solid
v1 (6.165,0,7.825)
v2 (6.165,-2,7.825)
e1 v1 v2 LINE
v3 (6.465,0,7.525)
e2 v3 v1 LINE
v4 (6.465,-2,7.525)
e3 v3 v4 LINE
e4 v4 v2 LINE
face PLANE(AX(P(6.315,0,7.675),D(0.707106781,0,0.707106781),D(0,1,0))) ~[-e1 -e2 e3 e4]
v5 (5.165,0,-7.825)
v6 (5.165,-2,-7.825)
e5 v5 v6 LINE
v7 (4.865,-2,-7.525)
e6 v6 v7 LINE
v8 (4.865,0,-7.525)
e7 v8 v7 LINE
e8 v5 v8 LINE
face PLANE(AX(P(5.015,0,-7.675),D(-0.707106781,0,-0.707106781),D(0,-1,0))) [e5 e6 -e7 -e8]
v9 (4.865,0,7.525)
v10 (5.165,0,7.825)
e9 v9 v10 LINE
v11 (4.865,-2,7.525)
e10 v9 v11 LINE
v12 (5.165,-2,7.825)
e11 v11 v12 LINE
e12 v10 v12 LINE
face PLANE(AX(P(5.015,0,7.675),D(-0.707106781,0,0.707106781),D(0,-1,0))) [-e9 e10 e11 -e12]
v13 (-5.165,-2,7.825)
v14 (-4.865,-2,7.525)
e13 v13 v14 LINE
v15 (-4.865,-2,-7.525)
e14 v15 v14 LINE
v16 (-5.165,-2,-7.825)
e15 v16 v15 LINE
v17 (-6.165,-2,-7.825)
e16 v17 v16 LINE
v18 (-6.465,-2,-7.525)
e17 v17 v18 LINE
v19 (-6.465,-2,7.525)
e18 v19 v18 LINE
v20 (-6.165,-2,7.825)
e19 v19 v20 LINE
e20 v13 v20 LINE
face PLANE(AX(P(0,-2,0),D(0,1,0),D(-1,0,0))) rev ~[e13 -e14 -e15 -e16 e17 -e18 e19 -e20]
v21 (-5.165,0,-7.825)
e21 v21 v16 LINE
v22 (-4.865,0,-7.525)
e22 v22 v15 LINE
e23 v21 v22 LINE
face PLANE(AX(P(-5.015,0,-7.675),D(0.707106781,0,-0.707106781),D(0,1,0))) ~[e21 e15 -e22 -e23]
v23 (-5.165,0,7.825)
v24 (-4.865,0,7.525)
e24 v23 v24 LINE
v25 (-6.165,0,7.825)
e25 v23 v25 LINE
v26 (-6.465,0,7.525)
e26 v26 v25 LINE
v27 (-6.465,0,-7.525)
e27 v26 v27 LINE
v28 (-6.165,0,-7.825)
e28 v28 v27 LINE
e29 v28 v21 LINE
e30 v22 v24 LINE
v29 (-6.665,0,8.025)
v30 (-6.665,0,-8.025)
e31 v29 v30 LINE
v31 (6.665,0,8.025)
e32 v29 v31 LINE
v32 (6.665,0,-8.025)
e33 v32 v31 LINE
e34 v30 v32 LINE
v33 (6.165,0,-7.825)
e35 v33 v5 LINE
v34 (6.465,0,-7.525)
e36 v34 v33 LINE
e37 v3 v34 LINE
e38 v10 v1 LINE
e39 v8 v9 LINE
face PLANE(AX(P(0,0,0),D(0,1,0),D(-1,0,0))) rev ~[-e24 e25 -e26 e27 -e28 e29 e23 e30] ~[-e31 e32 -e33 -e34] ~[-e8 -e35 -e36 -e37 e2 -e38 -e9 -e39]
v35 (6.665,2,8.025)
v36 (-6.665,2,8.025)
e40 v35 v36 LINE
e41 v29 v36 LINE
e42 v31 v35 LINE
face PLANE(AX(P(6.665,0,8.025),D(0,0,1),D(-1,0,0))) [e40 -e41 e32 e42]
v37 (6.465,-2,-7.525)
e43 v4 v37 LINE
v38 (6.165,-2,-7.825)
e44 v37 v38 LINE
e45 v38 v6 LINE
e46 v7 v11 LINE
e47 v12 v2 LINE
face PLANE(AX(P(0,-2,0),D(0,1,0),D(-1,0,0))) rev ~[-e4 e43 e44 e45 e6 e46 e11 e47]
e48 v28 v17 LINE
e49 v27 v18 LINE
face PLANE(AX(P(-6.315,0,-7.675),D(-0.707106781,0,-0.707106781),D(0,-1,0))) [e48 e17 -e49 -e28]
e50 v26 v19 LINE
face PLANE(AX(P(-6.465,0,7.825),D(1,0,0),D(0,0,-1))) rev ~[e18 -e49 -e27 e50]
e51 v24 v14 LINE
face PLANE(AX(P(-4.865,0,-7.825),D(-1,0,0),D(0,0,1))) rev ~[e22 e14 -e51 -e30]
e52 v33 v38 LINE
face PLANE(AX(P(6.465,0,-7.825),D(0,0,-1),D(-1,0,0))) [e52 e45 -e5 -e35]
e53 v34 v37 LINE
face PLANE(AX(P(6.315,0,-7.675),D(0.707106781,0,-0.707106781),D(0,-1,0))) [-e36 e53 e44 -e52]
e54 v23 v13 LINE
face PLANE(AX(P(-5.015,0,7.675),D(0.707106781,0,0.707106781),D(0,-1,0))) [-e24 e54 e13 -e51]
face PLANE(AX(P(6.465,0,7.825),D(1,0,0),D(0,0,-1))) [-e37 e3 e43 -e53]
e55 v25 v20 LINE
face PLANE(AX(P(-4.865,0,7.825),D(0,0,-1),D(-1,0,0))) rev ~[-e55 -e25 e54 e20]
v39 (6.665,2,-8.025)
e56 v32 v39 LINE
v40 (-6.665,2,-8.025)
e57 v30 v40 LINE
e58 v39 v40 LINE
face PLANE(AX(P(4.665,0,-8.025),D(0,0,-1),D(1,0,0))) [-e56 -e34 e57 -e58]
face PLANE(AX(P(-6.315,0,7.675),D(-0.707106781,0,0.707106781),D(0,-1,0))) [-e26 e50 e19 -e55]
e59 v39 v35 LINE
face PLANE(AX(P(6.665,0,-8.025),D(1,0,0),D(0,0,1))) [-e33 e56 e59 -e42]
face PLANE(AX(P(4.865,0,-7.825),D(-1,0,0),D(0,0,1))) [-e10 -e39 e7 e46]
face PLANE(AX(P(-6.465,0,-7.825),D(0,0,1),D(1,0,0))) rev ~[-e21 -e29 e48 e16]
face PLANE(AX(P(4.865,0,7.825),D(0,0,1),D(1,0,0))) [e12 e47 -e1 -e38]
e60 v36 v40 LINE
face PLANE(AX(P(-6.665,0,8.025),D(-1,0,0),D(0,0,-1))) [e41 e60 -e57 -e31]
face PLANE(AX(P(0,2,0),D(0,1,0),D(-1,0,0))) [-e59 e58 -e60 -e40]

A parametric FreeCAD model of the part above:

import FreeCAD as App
import Part
import Sketcher
from FreeCAD import Vector
Q = App.Units.Quantity


def edges_at(feature, points):
    """Names of the edges that pass closest to the given points."""
    edges = feature.Shape.Edges
    near = lambda p: min(range(len(edges)), key=lambda i: edges[i].distToShape(Part.Vertex(*p))[0])
    return sorted({f"Edge{near(p) + 1}" for p in points})


def add_polygon(sketch, points):
    """Adds a closed chain of lines whose ends are joined by coincident constraints."""
    first, n = sketch.GeometryCount, len(points)
    for a, b in zip(points, points[1:] + points[:1]):
        sketch.addGeometry(Part.LineSegment(App.Vector(*a, 0), App.Vector(*b, 0)), False)
    for i in range(n):
        sketch.addConstraint(Sketcher.Constraint("Coincident", first + i, 2, first + (i + 1) % n, 1))

doc = App.newDocument("Part")
body = doc.addObject("PartDesign::Body", "Body")

# Sketch on XZ plane
sketch1 = body.newObject("Sketcher::SketchObject", "Sketch")
sketch1.AttachmentSupport = (doc.getObject("XZ_Plane"), [""])
sketch1.MapMode = "FlatFace"
add_polygon(sketch1, [(7, 8), (7, -8), (-7, -8), (-7, 8)])  # lines 0-3
sketch1.addConstraint([
    Sketcher.Constraint("Vertical", 0),
    Sketcher.Constraint("Horizontal", 1),
    Sketcher.Constraint("Vertical", 2),
    Sketcher.Constraint("Horizontal", 3),
    Sketcher.Constraint("Symmetric", 0, 2, 2, 2, -1, 1),
    Sketcher.Constraint("DistanceX", 1, 2, 1, 1, Q("13.33 mm")),
    Sketcher.Constraint("DistanceY", 0, 2, 0, 1, Q("16.05 mm")),
])
pad1 = body.newObject("PartDesign::Pad", "Pad")
pad1.Profile = sketch1
pad1.Length = 2
pad1.Reversed = True

# Sketch on XZ plane
sketch2 = body.newObject("Sketcher::SketchObject", "Sketch001")
sketch2.AttachmentSupport = (doc.getObject("XZ_Plane"), [""])
sketch2.MapMode = "FlatFace"
add_polygon(sketch2, [(-4.9, 7.8), (-4.9, -7.8), (-6.5, -7.8), (-6.5, 7.8)])  # lines 0-3
add_polygon(sketch2, [(6.5, 7.8), (6.5, -7.8), (4.9, -7.8), (4.9, 7.8)])  # lines 4-7
sketch2.addConstraint([
    Sketcher.Constraint("Vertical", 0),
    Sketcher.Constraint("Horizontal", 1),
    Sketcher.Constraint("Vertical", 2),
    Sketcher.Constraint("Horizontal", 3),
    Sketcher.Constraint("Vertical", 4),
    Sketcher.Constraint("Horizontal", 5),
    Sketcher.Constraint("Vertical", 6),
    Sketcher.Constraint("Horizontal", 7),
    Sketcher.Constraint("Symmetric", 2, 2, 4, 2, -1, 1),
    Sketcher.Constraint("Symmetric", 0, 2, 6, 2, -1, 1),
    Sketcher.Constraint("Horizontal", 1, 2, 4, 2),
    Sketcher.Constraint("DistanceX", 1, 2, 1, 1, Q("1.6 mm")),
    Sketcher.Constraint("DistanceY", 0, 2, 0, 1, Q("15.65 mm")),
    Sketcher.Constraint("DistanceX", 0, 2, 4, 2, Q("11.33 mm")),
])
pad2 = body.newObject("PartDesign::Pad", "Pad001")
pad2.Profile = sketch2
pad2.Length = 2
doc.recompute()

chamfer = body.newObject("PartDesign::Chamfer", "Chamfer")
chamfer.Base = (pad2, edges_at(pad2, [
    (-4.865, -1, 7.825),
    (-6.465, -1, 7.825),
    (4.865, -1, 7.825),
    (6.465, -1, 7.825),
    (4.865, -1, -7.825),
    (6.465, -1, -7.825),
    (-4.865, -1, -7.825),
    (-6.465, -1, -7.825),
]))
chamfer.Size = 0.3

doc.recompute()
